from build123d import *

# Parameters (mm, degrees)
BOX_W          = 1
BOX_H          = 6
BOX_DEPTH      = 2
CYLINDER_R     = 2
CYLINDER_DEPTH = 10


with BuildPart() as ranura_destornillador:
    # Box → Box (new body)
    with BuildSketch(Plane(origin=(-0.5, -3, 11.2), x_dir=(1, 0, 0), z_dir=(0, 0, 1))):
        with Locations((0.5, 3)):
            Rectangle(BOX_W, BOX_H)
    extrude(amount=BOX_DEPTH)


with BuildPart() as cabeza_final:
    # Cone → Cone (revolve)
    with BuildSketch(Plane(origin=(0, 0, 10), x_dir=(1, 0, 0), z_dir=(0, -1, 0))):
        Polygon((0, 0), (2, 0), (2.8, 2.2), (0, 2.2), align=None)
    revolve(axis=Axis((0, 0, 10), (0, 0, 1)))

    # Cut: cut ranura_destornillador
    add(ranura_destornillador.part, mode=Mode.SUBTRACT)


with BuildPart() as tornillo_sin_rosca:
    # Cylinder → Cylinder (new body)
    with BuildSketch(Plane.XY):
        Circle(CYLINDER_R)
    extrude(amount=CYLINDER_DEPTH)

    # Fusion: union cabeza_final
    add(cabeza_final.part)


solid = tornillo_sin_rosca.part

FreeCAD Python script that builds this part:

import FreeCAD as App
import Part
import Sketcher

doc = App.newDocument("Part")
body = doc.addObject("PartDesign::Body", "Body")

# Sketch on XY plane
sketch1 = body.newObject("Sketcher::SketchObject", "Sketch")
sketch1.AttachmentSupport = (doc.getObject("XY_Plane"), [""])
sketch1.MapMode = "FlatFace"
sketch1.AttachmentOffset = App.Placement(App.Vector(0, 0, 11.2), App.Rotation())
sketch1.addGeometry(Part.LineSegment(App.Vector(-0.5, 3, 0), App.Vector(-0.5, -3, 0)), False)
sketch1.addGeometry(Part.LineSegment(App.Vector(-0.5, -3, 0), App.Vector(0.5, -3, 0)), False)
sketch1.addGeometry(Part.LineSegment(App.Vector(0.5, -3, 0), App.Vector(0.5, 3, 0)), False)
sketch1.addGeometry(Part.LineSegment(App.Vector(0.5, 3, 0), App.Vector(-0.5, 3, 0)), False)
sketch1.addConstraint(Sketcher.Constraint("Coincident", 0, 2, 1, 1))
sketch1.addConstraint(Sketcher.Constraint("Coincident", 1, 2, 2, 1))
sketch1.addConstraint(Sketcher.Constraint("Coincident", 2, 2, 3, 1))
sketch1.addConstraint(Sketcher.Constraint("Coincident", 3, 2, 0, 1))
sketch1.addConstraint(Sketcher.Constraint("Vertical", 0))
sketch1.addConstraint(Sketcher.Constraint("Horizontal", 1))
sketch1.addConstraint(Sketcher.Constraint("Vertical", 2))
sketch1.addConstraint(Sketcher.Constraint("Horizontal", 3))
sketch1.addConstraint(Sketcher.Constraint("Symmetric", 0, 2, 2, 2, -1, 1))
sketch1.addConstraint(Sketcher.Constraint("DistanceX", 1, 1, 1, 2, 1.0))
sketch1.addConstraint(Sketcher.Constraint("DistanceY", 0, 2, 0, 1, 6.0))
pad1 = body.newObject("PartDesign::Pad", "Pad")
pad1.Profile = sketch1
pad1.Length = 2
body2 = doc.addObject("PartDesign::Body", "Body001")

# Sketch on XZ plane
sketch2 = body2.newObject("Sketcher::SketchObject", "Sketch001")
sketch2.AttachmentSupport = (doc.getObject("XZ_Plane001"), [""])
sketch2.MapMode = "FlatFace"
sketch2.addGeometry(Part.LineSegment(App.Vector(0, 10, 0), App.Vector(2, 10, 0)), False)
sketch2.addGeometry(Part.LineSegment(App.Vector(2, 10, 0), App.Vector(2.8, 12.2, 0)), False)
sketch2.addGeometry(Part.LineSegment(App.Vector(2.8, 12.2, 0), App.Vector(0, 12.2, 0)), False)
sketch2.addGeometry(Part.LineSegment(App.Vector(0, 12.2, 0), App.Vector(0, 10, 0)), False)
sketch2.addConstraint(Sketcher.Constraint("Coincident", 0, 2, 1, 1))
sketch2.addConstraint(Sketcher.Constraint("Coincident", 1, 2, 2, 1))
sketch2.addConstraint(Sketcher.Constraint("Coincident", 2, 2, 3, 1))
sketch2.addConstraint(Sketcher.Constraint("Coincident", 3, 2, 0, 1))
sketch2.addConstraint(Sketcher.Constraint("Horizontal", 0))
sketch2.addConstraint(Sketcher.Constraint("Horizontal", 2))
sketch2.addConstraint(Sketcher.Constraint("Vertical", 3))
sketch2.addConstraint(Sketcher.Constraint("PointOnObject", 2, 2, -2))
sketch2.addConstraint(Sketcher.Constraint("DistanceX", 0, 1, 0, 2, 2.0))
sketch2.addConstraint(Sketcher.Constraint("DistanceX", 2, 2, 2, 1, 2.8))
sketch2.addConstraint(Sketcher.Constraint("DistanceY", 3, 2, 3, 1, 2.2))
sketch2.addConstraint(Sketcher.Constraint("DistanceY", -1, 1, 0, 2, 10.0))
revolution = body2.newObject("PartDesign::Revolution", "Revolution")
revolution.Profile = sketch2
revolution.ReferenceAxis = (sketch2, ["V_Axis"])
revolution.Angle = 360
doc.recompute()

boolean = body2.newObject("PartDesign::Boolean", "Boolean")
boolean.Type = "Cut"
boolean.addObjects([body])
body3 = doc.addObject("PartDesign::Body", "Body002")

# Sketch on XY plane
sketch3 = body3.newObject("Sketcher::SketchObject", "Sketch002")
sketch3.AttachmentSupport = (doc.getObject("XY_Plane002"), [""])
sketch3.MapMode = "FlatFace"
sketch3.addGeometry(Part.Circle(App.Vector(0, 0, 0), App.Vector(0, 0, 1), 2), False)
sketch3.addConstraint(Sketcher.Constraint("Coincident", 0, 3, -1, 1))
sketch3.addConstraint(Sketcher.Constraint("Diameter", 0, 4.0))
pad2 = body3.newObject("PartDesign::Pad", "Pad001")
pad2.Profile = sketch3
pad2.Length = 10
doc.recompute()

boolean2 = body3.newObject("PartDesign::Boolean", "Boolean001")
boolean2.Type = "Fuse"
boolean2.addObjects([body2])

doc.recompute()
